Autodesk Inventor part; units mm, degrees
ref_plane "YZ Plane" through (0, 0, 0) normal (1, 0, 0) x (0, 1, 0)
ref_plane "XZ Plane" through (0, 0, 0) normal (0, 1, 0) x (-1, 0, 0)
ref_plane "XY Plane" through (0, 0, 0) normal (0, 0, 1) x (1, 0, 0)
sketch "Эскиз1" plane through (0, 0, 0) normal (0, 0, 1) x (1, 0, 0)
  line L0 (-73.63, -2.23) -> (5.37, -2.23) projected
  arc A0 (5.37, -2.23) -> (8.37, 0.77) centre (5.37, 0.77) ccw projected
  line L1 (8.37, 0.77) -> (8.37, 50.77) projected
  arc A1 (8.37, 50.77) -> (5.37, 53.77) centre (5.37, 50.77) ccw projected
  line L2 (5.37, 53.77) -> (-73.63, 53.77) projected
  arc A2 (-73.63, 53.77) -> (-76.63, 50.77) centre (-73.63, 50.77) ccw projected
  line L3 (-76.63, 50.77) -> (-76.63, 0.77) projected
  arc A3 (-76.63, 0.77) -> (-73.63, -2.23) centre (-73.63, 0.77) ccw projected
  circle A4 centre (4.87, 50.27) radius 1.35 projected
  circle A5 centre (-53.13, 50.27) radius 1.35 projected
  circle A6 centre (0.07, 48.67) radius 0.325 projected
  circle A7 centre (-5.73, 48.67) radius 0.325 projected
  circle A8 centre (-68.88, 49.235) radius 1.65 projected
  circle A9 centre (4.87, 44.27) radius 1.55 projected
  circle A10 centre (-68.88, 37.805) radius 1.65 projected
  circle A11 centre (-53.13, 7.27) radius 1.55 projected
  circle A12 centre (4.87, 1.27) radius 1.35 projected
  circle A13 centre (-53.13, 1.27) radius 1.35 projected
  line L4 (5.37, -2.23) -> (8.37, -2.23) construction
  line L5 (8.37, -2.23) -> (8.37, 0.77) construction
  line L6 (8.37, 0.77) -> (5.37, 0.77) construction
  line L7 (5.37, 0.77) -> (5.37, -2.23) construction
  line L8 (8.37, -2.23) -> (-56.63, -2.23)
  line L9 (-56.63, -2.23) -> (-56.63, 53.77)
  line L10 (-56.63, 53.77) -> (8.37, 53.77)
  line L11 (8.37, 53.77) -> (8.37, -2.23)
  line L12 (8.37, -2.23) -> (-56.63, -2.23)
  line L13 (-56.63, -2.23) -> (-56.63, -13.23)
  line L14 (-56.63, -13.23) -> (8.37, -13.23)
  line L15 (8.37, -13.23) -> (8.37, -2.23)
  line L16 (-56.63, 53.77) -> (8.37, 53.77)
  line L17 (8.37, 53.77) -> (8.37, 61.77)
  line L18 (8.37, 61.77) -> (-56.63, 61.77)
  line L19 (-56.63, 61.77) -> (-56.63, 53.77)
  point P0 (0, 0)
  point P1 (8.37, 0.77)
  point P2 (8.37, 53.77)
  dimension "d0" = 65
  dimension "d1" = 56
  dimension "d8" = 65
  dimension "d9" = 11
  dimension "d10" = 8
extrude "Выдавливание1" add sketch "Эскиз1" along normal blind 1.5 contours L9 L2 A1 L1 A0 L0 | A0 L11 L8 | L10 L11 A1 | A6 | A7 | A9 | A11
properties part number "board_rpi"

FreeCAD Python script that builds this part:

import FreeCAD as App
import Part
import Sketcher
from FreeCAD import Vector
Q = App.Units.Quantity

doc = App.newDocument("Part")
params = doc.addObject("Spreadsheet::Sheet", "Params")
for row, (alias, value) in enumerate([
    ("sketch1_width", "65 mm"),
    ("sketch1_height", "56 mm"),
    ("sketch1_diameter", "2.7 mm"),
    ("pad1_length", "1.5 mm"),
], start=1):
    params.set(f"A{row}", alias)
    params.set(f"B{row}", "=" + value)
    params.setAlias(f"B{row}", alias)

body = doc.addObject("PartDesign::Body", "Body")

# Sketch on XY plane
sketch1 = body.newObject("Sketcher::SketchObject", "Sketch")
sketch1.AttachmentSupport = (doc.getObject("XY_Plane"), [""])
sketch1.MapMode = "FlatFace"
sketch1.addGeometry(Part.LineSegment(Vector(-56.6, 53.8, 0), Vector(-56.6, -2.2, 0)), False)
sketch1.addGeometry(Part.LineSegment(Vector(-56.6, -2.2, 0), Vector(8.4, -2.2, 0)), False)
sketch1.addGeometry(Part.LineSegment(Vector(8.4, -2.2, 0), Vector(8.4, 53.8, 0)), False)
sketch1.addGeometry(Part.LineSegment(Vector(8.4, 53.8, 0), Vector(-56.6, 53.8, 0)), False)
sketch1.addGeometry(Part.Circle(Vector(-53.1, 1.3, 0), Vector(0, 0, 1), 1.4), False)
sketch1.addGeometry(Part.Circle(Vector(4.9, 1.3, 0), Vector(0, 0, 1), 1.4), False)
sketch1.addGeometry(Part.Circle(Vector(-53.1, 50.3, 0), Vector(0, 0, 1), 1.4), False)
sketch1.addGeometry(Part.Circle(Vector(4.9, 50.3, 0), Vector(0, 0, 1), 1.4), False)
sketch1.addConstraint(Sketcher.Constraint("Coincident", 0, 2, 1, 1))
sketch1.addConstraint(Sketcher.Constraint("Coincident", 1, 2, 2, 1))
sketch1.addConstraint(Sketcher.Constraint("Coincident", 2, 2, 3, 1))
sketch1.addConstraint(Sketcher.Constraint("Coincident", 3, 2, 0, 1))
sketch1.addConstraint(Sketcher.Constraint("Vertical", 0))
sketch1.addConstraint(Sketcher.Constraint("Horizontal", 1))
sketch1.addConstraint(Sketcher.Constraint("Vertical", 2))
sketch1.addConstraint(Sketcher.Constraint("Horizontal", 3))
sketch1.addConstraint(Sketcher.Constraint("Equal", 4, 5))
sketch1.addConstraint(Sketcher.Constraint("Equal", 5, 6))
sketch1.addConstraint(Sketcher.Constraint("Equal", 6, 7))
sketch1.addConstraint(Sketcher.Constraint("Horizontal", 4, 3, 5, 3))
sketch1.addConstraint(Sketcher.Constraint("Horizontal", 6, 3, 7, 3))
sketch1.addConstraint(Sketcher.Constraint("Vertical", 4, 3, 6, 3))
sketch1.addConstraint(Sketcher.Constraint("Vertical", 5, 3, 7, 3))
sketch1.addConstraint(Sketcher.Constraint("DistanceX", 1, 1, 1, 2, Q("65 mm")))
sketch1.addConstraint(Sketcher.Constraint("DistanceY", 0, 2, 0, 1, Q("56 mm")))
sketch1.addConstraint(Sketcher.Constraint("Diameter", 4, Q("2.7 mm")))
sketch1.addConstraint(Sketcher.Constraint("DistanceX", 4, 3, 5, 3, Q("58 mm")))
sketch1.addConstraint(Sketcher.Constraint("DistanceY", 4, 3, 6, 3, Q("49 mm")))
sketch1.addConstraint(Sketcher.Constraint("DistanceX", 0, 2, 4, 3, Q("3.5 mm")))
sketch1.addConstraint(Sketcher.Constraint("DistanceY", 0, 2, 4, 3, Q("3.5 mm")))
sketch1.addConstraint(Sketcher.Constraint("DistanceX", 4, 3, -1, 1, Q("53.13 mm")))
sketch1.addConstraint(Sketcher.Constraint("DistanceY", -1, 1, 4, 3, Q("1.27 mm")))
sketch1.setExpression("Constraints[15]", "Params.sketch1_width")
sketch1.setExpression("Constraints[16]", "Params.sketch1_height")
sketch1.setExpression("Constraints[17]", "Params.sketch1_diameter")
pad1 = body.newObject("PartDesign::Pad", "Pad")
pad1.Profile = sketch1
pad1.setExpression("Length", "Params.pad1_length")

doc.recompute()
